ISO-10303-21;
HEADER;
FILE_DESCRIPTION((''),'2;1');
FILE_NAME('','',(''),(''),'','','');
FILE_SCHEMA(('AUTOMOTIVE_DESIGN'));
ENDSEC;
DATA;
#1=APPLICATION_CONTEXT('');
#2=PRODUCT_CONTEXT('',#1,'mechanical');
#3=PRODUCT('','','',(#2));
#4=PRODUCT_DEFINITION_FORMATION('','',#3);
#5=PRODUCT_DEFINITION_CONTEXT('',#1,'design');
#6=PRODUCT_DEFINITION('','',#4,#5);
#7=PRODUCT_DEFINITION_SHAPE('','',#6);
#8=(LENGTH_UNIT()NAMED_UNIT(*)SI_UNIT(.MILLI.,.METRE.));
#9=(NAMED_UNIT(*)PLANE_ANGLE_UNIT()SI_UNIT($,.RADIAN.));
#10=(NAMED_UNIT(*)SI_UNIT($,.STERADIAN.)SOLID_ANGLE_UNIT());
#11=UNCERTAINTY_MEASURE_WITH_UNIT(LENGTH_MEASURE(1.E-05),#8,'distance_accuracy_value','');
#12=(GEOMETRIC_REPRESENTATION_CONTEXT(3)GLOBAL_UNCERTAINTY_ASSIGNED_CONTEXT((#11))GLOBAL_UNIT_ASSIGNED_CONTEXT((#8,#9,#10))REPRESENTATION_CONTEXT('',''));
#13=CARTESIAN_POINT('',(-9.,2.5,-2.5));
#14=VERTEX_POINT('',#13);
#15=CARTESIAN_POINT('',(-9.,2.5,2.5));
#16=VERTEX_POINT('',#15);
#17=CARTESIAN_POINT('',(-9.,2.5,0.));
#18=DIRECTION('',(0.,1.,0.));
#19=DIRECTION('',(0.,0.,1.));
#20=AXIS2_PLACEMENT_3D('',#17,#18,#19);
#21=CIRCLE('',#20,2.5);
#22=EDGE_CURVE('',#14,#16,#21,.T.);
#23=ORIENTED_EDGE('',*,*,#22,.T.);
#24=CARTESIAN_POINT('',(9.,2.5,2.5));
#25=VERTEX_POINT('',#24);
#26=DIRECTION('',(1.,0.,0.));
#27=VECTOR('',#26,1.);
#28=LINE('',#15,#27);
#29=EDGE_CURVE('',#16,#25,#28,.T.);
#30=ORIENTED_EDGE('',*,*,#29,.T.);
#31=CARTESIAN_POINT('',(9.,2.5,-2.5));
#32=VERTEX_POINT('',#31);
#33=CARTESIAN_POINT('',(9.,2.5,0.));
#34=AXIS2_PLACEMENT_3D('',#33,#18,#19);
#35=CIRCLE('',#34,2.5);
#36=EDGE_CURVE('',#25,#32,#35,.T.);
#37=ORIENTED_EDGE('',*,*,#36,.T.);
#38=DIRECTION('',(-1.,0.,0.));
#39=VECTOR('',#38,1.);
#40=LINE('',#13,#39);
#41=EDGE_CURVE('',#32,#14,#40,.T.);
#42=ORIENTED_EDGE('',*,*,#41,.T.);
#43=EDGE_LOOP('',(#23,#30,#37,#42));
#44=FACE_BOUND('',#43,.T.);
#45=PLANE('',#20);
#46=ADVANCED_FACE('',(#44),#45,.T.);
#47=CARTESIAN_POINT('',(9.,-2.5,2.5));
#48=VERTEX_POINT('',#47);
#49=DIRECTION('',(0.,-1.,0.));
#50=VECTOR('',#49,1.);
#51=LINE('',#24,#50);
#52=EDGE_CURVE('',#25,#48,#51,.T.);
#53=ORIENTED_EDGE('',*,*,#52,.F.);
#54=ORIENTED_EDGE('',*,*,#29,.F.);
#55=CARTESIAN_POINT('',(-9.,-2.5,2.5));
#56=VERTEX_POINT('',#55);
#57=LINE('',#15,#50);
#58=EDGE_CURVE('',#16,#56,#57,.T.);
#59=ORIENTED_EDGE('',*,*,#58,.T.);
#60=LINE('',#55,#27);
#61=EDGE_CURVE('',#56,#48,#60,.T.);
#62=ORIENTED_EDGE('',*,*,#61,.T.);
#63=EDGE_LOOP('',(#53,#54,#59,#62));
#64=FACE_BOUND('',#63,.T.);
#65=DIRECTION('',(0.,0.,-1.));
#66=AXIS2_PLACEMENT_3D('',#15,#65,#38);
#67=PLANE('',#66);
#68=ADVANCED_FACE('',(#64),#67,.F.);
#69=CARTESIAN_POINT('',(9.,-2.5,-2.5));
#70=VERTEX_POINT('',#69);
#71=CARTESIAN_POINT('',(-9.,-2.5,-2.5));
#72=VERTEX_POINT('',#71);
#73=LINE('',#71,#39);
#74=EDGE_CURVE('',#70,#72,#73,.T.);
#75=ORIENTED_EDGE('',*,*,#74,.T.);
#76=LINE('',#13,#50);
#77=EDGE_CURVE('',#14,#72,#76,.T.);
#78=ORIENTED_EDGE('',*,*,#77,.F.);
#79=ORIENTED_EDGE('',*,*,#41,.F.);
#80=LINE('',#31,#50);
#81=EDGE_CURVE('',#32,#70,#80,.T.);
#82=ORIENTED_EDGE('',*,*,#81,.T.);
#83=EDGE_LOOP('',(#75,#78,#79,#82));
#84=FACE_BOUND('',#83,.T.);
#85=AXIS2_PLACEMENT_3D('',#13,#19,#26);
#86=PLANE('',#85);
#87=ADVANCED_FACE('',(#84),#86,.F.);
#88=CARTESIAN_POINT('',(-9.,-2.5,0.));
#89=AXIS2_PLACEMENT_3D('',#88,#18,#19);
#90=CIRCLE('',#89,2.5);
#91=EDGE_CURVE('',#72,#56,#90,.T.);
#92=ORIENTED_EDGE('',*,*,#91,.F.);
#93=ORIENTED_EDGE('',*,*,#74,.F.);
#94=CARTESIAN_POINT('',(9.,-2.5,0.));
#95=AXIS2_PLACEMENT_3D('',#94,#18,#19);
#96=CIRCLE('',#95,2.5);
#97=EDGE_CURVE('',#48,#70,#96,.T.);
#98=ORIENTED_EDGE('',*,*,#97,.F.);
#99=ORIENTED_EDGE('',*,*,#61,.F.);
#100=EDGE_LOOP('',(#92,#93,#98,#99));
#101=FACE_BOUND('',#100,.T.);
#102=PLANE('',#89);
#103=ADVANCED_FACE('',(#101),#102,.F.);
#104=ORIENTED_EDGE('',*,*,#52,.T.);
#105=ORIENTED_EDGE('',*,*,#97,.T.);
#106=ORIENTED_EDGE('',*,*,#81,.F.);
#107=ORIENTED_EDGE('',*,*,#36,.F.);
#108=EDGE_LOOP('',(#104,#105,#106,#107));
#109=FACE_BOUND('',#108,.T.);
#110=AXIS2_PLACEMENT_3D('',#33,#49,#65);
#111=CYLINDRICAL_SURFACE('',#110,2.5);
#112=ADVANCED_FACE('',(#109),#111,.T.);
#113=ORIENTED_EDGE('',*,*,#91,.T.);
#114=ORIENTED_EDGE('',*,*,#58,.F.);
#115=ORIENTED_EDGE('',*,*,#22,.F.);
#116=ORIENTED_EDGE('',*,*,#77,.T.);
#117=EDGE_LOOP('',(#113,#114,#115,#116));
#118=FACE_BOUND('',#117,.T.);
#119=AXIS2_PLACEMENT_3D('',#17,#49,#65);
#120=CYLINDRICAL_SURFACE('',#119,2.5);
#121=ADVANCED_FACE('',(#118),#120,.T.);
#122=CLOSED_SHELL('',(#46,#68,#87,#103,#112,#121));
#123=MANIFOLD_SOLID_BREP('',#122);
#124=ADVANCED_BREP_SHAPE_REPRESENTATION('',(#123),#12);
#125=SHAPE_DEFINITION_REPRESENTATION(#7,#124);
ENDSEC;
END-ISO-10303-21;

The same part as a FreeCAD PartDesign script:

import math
import FreeCAD as App
import Part
import Sketcher

V = App.Vector
Q = App.Units.Quantity

doc = App.newDocument("Part")
body = doc.addObject("PartDesign::Body", "Body")

# Sketch on XZ plane
sketch1 = doc.addObject("Sketcher::SketchObject", "Sketch")
body.addObject(sketch1)
sketch1.AttachmentSupport = (doc.XZ_Plane, [""])
sketch1.MapMode = "FlatFace"
sketch1.addGeometry([
    Part.LineSegment(V(9, -2.5, 0), V(-9, -2.5, 0)),
    Part.ArcOfCircle(Part.Circle(V(-9, 0, 0), V(0, 0, 1), 2.5), math.radians(90), math.radians(270)),
    Part.LineSegment(V(-9, 2.5, 0), V(9, 2.5, 0)),
    Part.ArcOfCircle(Part.Circle(V(9, 0, 0), V(0, 0, 1), 2.5), math.radians(-90), math.radians(90)),
], False)
sketch1.addConstraint([
    Sketcher.Constraint("Tangent", 0, 2, 1, 2),
    Sketcher.Constraint("Tangent", 1, 1, 2, 1),
    Sketcher.Constraint("Tangent", 2, 2, 3, 2),
    Sketcher.Constraint("Tangent", 3, 1, 0, 1),
    Sketcher.Constraint("Horizontal", 0),
    Sketcher.Constraint("Horizontal", 2),
    Sketcher.Constraint("Symmetric", 1, 3, 3, 3, -1, 1),
    Sketcher.Constraint("Radius", 1, Q("2.5 mm")),
    Sketcher.Constraint("DistanceX", 0, 2, 0, 1, Q("18 mm")),
])
pad1 = doc.addObject("PartDesign::Pad", "Pad")
body.addObject(pad1)
pad1.Profile = sketch1
pad1.Length = 5
pad1.Midplane = True

doc.recompute()
